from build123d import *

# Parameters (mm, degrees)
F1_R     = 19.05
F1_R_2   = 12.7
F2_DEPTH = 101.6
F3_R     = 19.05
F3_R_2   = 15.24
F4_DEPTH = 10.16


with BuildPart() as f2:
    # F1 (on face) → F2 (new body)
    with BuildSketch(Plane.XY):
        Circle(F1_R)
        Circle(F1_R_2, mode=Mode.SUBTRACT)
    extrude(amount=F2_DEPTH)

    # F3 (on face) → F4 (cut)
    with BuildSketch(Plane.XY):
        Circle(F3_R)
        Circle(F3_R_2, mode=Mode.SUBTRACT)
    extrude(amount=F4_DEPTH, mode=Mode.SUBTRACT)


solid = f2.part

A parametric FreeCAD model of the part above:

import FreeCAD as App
import Part
import Sketcher
Q = App.Units.Quantity

doc = App.newDocument("Part")
body = doc.addObject("PartDesign::Body", "Body")

# Sketch on XY plane
sketch1 = body.newObject("Sketcher::SketchObject", "Sketch")
sketch1.AttachmentSupport = (doc.getObject("XY_Plane"), [""])
sketch1.MapMode = "FlatFace"
sketch1.addGeometry([
    Part.Circle(App.Vector(0, 0, 0), App.Vector(0, 0, 1), 19),
    Part.Circle(App.Vector(0, 0, 0), App.Vector(0, 0, 1), 13),
], False)
sketch1.addConstraint([
    Sketcher.Constraint("Coincident", 0, 3, -1, 1),
    Sketcher.Constraint("Coincident", 1, 3, -1, 1),
    Sketcher.Constraint("Diameter", 1, Q("1 in")),
    Sketcher.Constraint("Diameter", 0, Q("1.5 in")),
])
pad1 = body.newObject("PartDesign::Pad", "Pad")
pad1.Profile = sketch1
pad1.Length = Q("4 in")

# Sketch on XY plane
sketch2 = body.newObject("Sketcher::SketchObject", "Sketch001")
sketch2.AttachmentSupport = (doc.getObject("XY_Plane"), [""])
sketch2.MapMode = "FlatFace"
sketch2.addGeometry([
    Part.Circle(App.Vector(0, 0, 0), App.Vector(0, 0, 1), 19),
    Part.Circle(App.Vector(0, 0, 0), App.Vector(0, 0, 1), 15),
], False)
sketch2.addConstraint([
    Sketcher.Constraint("Coincident", 0, 3, -1, 1),
    Sketcher.Constraint("Coincident", 1, 3, -1, 1),
    Sketcher.Constraint("Diameter", 0, Q("1.5 in")),
    Sketcher.Constraint("Diameter", 1, Q("1.2 in")),
])
pocket1 = body.newObject("PartDesign::Pocket", "Pocket")
pocket1.Profile = sketch2
pocket1.Length = Q("0.4 in")
pocket1.Reversed = True

doc.recompute()
